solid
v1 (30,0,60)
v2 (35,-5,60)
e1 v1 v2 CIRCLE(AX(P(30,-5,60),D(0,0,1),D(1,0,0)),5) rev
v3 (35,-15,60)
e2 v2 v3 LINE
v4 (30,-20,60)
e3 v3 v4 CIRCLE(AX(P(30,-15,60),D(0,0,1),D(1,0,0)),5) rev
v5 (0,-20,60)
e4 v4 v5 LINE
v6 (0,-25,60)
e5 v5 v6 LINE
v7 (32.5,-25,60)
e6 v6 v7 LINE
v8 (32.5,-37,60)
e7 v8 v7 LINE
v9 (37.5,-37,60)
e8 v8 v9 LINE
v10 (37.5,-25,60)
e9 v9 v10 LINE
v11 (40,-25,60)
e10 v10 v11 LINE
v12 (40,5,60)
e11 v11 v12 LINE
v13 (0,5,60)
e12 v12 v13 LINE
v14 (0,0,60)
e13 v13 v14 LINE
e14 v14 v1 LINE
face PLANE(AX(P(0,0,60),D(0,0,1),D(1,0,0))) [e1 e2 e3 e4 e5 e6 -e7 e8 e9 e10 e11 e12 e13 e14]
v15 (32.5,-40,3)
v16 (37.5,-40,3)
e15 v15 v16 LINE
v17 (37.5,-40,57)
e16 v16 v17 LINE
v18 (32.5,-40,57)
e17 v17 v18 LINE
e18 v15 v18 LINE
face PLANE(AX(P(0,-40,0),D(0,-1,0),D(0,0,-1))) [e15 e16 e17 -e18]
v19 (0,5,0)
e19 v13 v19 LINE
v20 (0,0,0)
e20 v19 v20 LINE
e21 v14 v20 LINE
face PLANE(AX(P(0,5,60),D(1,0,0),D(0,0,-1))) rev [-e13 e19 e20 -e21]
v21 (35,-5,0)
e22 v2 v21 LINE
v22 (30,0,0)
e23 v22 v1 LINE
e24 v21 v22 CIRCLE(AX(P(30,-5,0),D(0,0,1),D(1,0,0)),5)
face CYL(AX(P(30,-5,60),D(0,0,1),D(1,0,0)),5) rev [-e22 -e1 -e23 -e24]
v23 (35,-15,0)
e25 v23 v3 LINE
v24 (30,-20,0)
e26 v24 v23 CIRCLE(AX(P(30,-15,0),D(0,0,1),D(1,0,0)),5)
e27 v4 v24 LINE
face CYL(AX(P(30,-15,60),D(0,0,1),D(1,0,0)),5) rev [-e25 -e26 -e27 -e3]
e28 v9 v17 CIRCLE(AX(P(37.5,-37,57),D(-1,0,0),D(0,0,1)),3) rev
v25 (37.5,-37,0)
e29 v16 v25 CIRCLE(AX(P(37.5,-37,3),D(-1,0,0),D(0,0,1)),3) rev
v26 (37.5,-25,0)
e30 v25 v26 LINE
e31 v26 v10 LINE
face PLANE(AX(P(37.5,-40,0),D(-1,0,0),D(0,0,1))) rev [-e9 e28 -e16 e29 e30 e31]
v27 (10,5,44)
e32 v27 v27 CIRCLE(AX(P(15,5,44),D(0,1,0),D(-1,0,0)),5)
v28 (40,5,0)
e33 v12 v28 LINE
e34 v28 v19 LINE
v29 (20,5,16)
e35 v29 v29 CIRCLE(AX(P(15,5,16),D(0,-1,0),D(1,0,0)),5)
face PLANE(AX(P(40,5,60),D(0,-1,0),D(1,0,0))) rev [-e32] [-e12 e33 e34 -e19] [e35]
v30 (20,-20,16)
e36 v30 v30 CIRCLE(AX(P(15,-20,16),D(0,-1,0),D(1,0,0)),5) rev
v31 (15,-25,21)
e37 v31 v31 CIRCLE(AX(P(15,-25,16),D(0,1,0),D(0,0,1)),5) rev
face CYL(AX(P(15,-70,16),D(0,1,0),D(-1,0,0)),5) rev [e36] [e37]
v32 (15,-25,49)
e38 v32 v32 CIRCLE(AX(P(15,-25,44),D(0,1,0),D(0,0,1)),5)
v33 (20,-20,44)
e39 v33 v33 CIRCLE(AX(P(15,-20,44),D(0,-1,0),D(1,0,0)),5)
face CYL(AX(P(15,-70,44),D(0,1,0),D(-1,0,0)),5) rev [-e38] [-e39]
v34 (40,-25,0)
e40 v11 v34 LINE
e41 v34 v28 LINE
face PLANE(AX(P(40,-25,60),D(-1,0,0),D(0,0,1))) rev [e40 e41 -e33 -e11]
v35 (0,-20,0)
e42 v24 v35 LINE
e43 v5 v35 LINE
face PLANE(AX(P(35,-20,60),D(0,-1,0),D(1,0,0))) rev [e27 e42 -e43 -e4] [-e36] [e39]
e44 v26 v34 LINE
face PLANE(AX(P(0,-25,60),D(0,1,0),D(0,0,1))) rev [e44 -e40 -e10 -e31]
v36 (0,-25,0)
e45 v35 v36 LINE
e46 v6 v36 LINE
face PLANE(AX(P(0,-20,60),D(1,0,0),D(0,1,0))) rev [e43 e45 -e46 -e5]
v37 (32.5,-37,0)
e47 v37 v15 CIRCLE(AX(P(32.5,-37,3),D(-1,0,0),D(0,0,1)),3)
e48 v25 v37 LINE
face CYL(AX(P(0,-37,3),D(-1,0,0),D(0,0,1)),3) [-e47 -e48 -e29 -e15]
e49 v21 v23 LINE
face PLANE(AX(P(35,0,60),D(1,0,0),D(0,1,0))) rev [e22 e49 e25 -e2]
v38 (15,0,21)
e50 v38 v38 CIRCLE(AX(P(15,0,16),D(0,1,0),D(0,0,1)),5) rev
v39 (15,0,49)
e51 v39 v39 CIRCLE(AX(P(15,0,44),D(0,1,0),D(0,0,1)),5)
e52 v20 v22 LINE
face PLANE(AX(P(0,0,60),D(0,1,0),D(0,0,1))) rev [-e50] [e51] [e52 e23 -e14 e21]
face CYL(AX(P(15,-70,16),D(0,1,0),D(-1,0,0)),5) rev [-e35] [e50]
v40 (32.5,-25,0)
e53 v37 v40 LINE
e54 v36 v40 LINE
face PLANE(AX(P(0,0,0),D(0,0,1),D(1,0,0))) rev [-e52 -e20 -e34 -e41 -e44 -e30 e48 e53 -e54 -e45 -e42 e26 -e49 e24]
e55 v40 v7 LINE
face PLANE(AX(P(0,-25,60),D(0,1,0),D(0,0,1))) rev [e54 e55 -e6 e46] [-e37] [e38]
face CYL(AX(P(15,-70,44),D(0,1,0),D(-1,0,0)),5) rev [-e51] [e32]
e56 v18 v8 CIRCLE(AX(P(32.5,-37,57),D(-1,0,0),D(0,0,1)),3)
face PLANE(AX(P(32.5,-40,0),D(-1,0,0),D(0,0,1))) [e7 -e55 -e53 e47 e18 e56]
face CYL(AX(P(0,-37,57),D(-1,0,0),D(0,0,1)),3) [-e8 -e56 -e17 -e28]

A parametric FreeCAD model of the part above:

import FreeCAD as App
import Part
import Sketcher
from FreeCAD import Vector
Q = App.Units.Quantity


def edges_at(feature, points):
    """Names of the edges that pass closest to the given points."""
    edges = feature.Shape.Edges
    near = lambda p: min(range(len(edges)), key=lambda i: edges[i].distToShape(Part.Vertex(*p))[0])
    return sorted({f"Edge{near(p) + 1}" for p in points})

doc = App.newDocument("Part")
body = doc.addObject("PartDesign::Body", "Body")

# Sketch on XY plane
sketch1 = body.newObject("Sketcher::SketchObject", "Sketch")
sketch1.AttachmentSupport = (doc.getObject("XY_Plane"), [""])
sketch1.MapMode = "FlatFace"
sketch1.addGeometry([
    Part.LineSegment(Vector(0, 0, 0), Vector(35, 0, 0)),  # 0
    Part.LineSegment(Vector(35, 0, 0), Vector(35, -20, 0)),  # 1
    Part.LineSegment(Vector(35, -20, 0), Vector(0, -20, 0)),  # 2
    Part.LineSegment(Vector(0, -20, 0), Vector(0, -25, 0)),  # 3
    Part.LineSegment(Vector(0, -25, 0), Vector(40, -25, 0)),  # 4
    Part.LineSegment(Vector(40, -25, 0), Vector(40, 5, 0)),  # 5
    Part.LineSegment(Vector(40, 5, 0), Vector(0, 5, 0)),  # 6
    Part.LineSegment(Vector(0, 5, 0), Vector(0, 0, 0)),  # 7
], False)
sketch1.addConstraint([
    Sketcher.Constraint("Coincident", 0, 2, 1, 1),
    Sketcher.Constraint("Coincident", 1, 2, 2, 1),
    Sketcher.Constraint("Coincident", 2, 2, 3, 1),
    Sketcher.Constraint("Coincident", 3, 2, 4, 1),
    Sketcher.Constraint("Coincident", 4, 2, 5, 1),
    Sketcher.Constraint("Coincident", 5, 2, 6, 1),
    Sketcher.Constraint("Coincident", 6, 2, 7, 1),
    Sketcher.Constraint("Coincident", 7, 2, 0, 1),
    Sketcher.Constraint("Horizontal", 0),
    Sketcher.Constraint("Vertical", 1),
    Sketcher.Constraint("Horizontal", 2),
    Sketcher.Constraint("Vertical", 3),
    Sketcher.Constraint("Horizontal", 4),
    Sketcher.Constraint("Vertical", 5),
    Sketcher.Constraint("Horizontal", 6),
    Sketcher.Constraint("Vertical", 7),
    Sketcher.Constraint("Coincident", 7, 2, -1, 1),
    Sketcher.Constraint("PointOnObject", 2, 2, -2),
    Sketcher.Constraint("Equal", 3, 7),
    Sketcher.Constraint("DistanceX", 0, 1, 0, 2, Q("35 mm")),
    Sketcher.Constraint("DistanceX", 4, 1, 4, 2, Q("40 mm")),
    Sketcher.Constraint("DistanceY", 1, 2, 1, 1, Q("20 mm")),
    Sketcher.Constraint("DistanceY", 3, 2, 3, 1, Q("5 mm")),
])
pad1 = body.newObject("PartDesign::Pad", "Pad")
pad1.Profile = sketch1
pad1.Length = 60
doc.recompute()

fillet = body.newObject("PartDesign::Fillet", "Fillet")
fillet.Base = (pad1, edges_at(pad1, [(35, -20, 30), (35, 0, 30)]))
fillet.Radius = 5

# Sketch on XZ plane
sketch2 = body.newObject("Sketcher::SketchObject", "Sketch001")
sketch2.AttachmentSupport = (doc.getObject("XZ_Plane"), [""])
sketch2.MapMode = "FlatFace"
sketch2.AttachmentOffset = App.Placement(Vector(0, 0, -5), App.Rotation())
sketch2.addGeometry([
    Part.Circle(Vector(15, 44, 0), Vector(0, 0, 1), 5),
    Part.Circle(Vector(15, 16, 0), Vector(0, 0, 1), 5),
], False)
sketch2.addConstraint([
    Sketcher.Constraint("Equal", 0, 1),
    Sketcher.Constraint("Vertical", 0, 3, 1, 3),
    Sketcher.Constraint("Diameter", 0, Q("10 mm")),
    Sketcher.Constraint("DistanceX", -1, 1, 0, 3, Q("15 mm")),
    Sketcher.Constraint("DistanceY", -1, 1, 0, 3, Q("44 mm")),
    Sketcher.Constraint("DistanceY", -1, 1, 1, 3, Q("16 mm")),
])
pocket1 = body.newObject("PartDesign::Pocket", "Pocket")
pocket1.Profile = sketch2
pocket1.Length = 75
pocket1.Reversed = True

# Sketch on XZ plane
sketch3 = body.newObject("Sketcher::SketchObject", "Sketch002")
sketch3.AttachmentSupport = (doc.getObject("XZ_Plane"), [""])
sketch3.MapMode = "FlatFace"
sketch3.AttachmentOffset = App.Placement(Vector(0, 0, 25), App.Rotation())
sketch3.addGeometry([
    Part.LineSegment(Vector(32, 60, 0), Vector(32, 0, 0)),
    Part.LineSegment(Vector(32, 0, 0), Vector(38, 0, 0)),
    Part.LineSegment(Vector(38, 0, 0), Vector(38, 60, 0)),
    Part.LineSegment(Vector(38, 60, 0), Vector(32, 60, 0)),
], False)
sketch3.addConstraint([
    Sketcher.Constraint("Coincident", 0, 2, 1, 1),
    Sketcher.Constraint("Coincident", 1, 2, 2, 1),
    Sketcher.Constraint("Coincident", 2, 2, 3, 1),
    Sketcher.Constraint("Coincident", 3, 2, 0, 1),
    Sketcher.Constraint("Vertical", 0),
    Sketcher.Constraint("Horizontal", 1),
    Sketcher.Constraint("Vertical", 2),
    Sketcher.Constraint("Horizontal", 3),
    Sketcher.Constraint("PointOnObject", 0, 2, -1),
    Sketcher.Constraint("DistanceX", 1, 1, 1, 2, Q("5 mm")),
    Sketcher.Constraint("DistanceY", 0, 2, 0, 1, Q("60 mm")),
    Sketcher.Constraint("DistanceX", -1, 1, 0, 2, Q("32.5 mm")),
])
pad2 = body.newObject("PartDesign::Pad", "Pad001")
pad2.Profile = sketch3
pad2.Length = 15
doc.recompute()

fillet2 = body.newObject("PartDesign::Fillet", "Fillet001")
fillet2.Base = (pad2, edges_at(pad2, [(35, -40, 0), (35, -40, 60)]))
fillet2.Radius = 3

doc.recompute()
